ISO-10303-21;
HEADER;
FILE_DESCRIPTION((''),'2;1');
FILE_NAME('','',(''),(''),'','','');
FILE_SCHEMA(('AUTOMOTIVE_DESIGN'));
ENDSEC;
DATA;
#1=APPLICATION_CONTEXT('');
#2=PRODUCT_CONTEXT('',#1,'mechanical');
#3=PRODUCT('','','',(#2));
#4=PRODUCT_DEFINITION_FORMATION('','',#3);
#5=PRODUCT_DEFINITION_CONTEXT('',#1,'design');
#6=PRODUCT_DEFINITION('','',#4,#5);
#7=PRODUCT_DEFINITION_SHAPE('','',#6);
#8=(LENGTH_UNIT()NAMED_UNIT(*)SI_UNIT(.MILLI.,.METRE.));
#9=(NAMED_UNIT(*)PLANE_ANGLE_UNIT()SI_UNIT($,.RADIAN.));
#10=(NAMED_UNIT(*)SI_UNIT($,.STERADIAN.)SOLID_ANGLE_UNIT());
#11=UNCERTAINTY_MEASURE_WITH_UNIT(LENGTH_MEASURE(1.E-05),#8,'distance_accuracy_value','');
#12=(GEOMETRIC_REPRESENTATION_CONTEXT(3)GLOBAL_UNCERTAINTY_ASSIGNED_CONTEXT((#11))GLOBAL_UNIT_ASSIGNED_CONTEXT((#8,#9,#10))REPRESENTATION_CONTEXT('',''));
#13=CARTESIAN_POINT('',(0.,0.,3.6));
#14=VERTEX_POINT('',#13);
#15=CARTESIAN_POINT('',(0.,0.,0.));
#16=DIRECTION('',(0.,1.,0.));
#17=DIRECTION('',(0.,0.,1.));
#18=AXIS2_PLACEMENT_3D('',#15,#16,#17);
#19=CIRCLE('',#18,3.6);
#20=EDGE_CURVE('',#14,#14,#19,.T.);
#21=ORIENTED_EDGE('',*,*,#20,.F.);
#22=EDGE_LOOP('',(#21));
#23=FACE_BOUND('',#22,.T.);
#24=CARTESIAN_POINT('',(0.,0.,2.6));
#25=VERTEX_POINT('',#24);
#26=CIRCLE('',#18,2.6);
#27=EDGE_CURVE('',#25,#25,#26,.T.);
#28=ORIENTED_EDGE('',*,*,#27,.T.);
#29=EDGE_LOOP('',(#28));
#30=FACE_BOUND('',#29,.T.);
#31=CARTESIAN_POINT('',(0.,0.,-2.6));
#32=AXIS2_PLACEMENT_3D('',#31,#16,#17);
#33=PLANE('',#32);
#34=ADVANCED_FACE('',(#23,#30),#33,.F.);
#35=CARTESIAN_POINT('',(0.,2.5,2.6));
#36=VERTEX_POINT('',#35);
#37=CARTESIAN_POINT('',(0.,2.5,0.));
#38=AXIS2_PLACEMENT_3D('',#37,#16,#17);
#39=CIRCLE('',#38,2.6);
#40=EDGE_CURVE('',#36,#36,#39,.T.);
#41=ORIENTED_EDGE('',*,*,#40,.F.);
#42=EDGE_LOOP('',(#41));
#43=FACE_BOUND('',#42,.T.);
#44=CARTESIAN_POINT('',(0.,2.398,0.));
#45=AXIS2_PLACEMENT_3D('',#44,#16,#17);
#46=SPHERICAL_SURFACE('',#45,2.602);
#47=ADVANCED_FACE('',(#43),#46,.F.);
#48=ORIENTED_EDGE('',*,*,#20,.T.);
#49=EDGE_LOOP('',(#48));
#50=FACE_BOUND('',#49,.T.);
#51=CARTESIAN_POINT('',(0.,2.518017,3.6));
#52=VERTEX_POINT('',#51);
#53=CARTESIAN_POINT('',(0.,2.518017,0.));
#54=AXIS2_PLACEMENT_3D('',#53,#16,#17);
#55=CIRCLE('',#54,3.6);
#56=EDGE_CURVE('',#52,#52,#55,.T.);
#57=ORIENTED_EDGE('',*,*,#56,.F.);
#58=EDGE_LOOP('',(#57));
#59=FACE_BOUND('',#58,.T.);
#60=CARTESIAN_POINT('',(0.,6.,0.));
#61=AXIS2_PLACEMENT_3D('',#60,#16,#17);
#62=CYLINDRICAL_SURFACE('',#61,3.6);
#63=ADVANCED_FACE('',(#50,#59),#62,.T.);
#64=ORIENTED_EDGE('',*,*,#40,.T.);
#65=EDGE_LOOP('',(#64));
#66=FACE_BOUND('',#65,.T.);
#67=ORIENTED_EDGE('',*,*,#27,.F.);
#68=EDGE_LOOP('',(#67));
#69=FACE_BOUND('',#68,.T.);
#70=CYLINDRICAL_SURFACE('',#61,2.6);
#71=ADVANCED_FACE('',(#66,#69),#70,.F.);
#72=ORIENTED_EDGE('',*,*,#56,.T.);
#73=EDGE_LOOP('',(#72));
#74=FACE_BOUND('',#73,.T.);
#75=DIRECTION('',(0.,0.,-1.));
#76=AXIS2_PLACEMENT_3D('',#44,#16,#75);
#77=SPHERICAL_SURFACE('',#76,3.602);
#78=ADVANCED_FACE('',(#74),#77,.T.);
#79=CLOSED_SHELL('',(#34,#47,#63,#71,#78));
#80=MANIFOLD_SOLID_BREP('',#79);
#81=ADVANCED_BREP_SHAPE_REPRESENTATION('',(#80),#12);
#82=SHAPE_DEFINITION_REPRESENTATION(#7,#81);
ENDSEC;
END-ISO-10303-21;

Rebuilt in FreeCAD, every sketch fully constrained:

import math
import FreeCAD as App
import Part
import Sketcher
from FreeCAD import Vector
Q = App.Units.Quantity

doc = App.newDocument("Part")
body = doc.addObject("PartDesign::Body", "Body")

sketch1 = body.newObject("Sketcher::SketchObject", "Sketch")
sketch1.AttachmentSupport = (doc.getObject("YZ_Plane"), [""])
sketch1.MapMode = "FlatFace"
sketch1.addGeometry(Part.LineSegment(Vector(2.5, -2.6, 0), Vector(0, -2.6, 0)), False)
sketch1.addGeometry(Part.LineSegment(Vector(0, -2.6, 0), Vector(0, -3.6, 0)), False)
sketch1.addGeometry(Part.LineSegment(Vector(0, -3.6, 0), Vector(2.518017, -3.6, 0)), False)
sketch1.addGeometry(Part.ArcOfCircle(Part.Circle(Vector(2.398, 0, 0), Vector(0, 0, 1), 3.602), math.radians(-88.090583), math.radians(0)), False)
sketch1.addGeometry(Part.LineSegment(Vector(6, 0, 0), Vector(5, 0, 0)), False)
sketch1.addGeometry(Part.ArcOfCircle(Part.Circle(Vector(2.398, 0, 0), Vector(0, 0, 1), 2.602), math.radians(-87.753395), math.radians(0)), False)
sketch1.addConstraint(Sketcher.Constraint("Coincident", 0, 2, 1, 1))
sketch1.addConstraint(Sketcher.Constraint("Coincident", 1, 2, 2, 1))
sketch1.addConstraint(Sketcher.Constraint("Coincident", 2, 2, 3, 1))
sketch1.addConstraint(Sketcher.Constraint("Coincident", 3, 2, 4, 1))
sketch1.addConstraint(Sketcher.Constraint("Coincident", 4, 2, 5, 2))
sketch1.addConstraint(Sketcher.Constraint("Coincident", 5, 1, 0, 1))
sketch1.addConstraint(Sketcher.Constraint("Horizontal", 0))
sketch1.addConstraint(Sketcher.Constraint("Vertical", 1))
sketch1.addConstraint(Sketcher.Constraint("Horizontal", 2))
sketch1.addConstraint(Sketcher.Constraint("Horizontal", 4))
sketch1.addConstraint(Sketcher.Constraint("Coincident", 5, 3, 3, 3))
sketch1.addConstraint(Sketcher.Constraint("PointOnObject", 3, 3, -1))
sketch1.addConstraint(Sketcher.Constraint("PointOnObject", 0, 2, -2))
sketch1.addConstraint(Sketcher.Constraint("PointOnObject", 3, 2, -1))
sketch1.addConstraint(Sketcher.Constraint("Equal", 4, 1))
sketch1.addConstraint(Sketcher.Constraint("DistanceX", 4, 2, 4, 1, Q("1 mm")))
sketch1.addConstraint(Sketcher.Constraint("DistanceX", 0, 2, 0, 1, Q("2.5 mm")))
sketch1.addConstraint(Sketcher.Constraint("DistanceX", -1, 1, 3, 2, Q("6 mm")))
sketch1.addConstraint(Sketcher.Constraint("Radius", 3, Q("3.602 mm")))
revolution = body.newObject("PartDesign::Revolution", "Revolution")
revolution.Profile = sketch1
revolution.ReferenceAxis = (sketch1, ["H_Axis"])
revolution.Angle = 360

doc.recompute()
